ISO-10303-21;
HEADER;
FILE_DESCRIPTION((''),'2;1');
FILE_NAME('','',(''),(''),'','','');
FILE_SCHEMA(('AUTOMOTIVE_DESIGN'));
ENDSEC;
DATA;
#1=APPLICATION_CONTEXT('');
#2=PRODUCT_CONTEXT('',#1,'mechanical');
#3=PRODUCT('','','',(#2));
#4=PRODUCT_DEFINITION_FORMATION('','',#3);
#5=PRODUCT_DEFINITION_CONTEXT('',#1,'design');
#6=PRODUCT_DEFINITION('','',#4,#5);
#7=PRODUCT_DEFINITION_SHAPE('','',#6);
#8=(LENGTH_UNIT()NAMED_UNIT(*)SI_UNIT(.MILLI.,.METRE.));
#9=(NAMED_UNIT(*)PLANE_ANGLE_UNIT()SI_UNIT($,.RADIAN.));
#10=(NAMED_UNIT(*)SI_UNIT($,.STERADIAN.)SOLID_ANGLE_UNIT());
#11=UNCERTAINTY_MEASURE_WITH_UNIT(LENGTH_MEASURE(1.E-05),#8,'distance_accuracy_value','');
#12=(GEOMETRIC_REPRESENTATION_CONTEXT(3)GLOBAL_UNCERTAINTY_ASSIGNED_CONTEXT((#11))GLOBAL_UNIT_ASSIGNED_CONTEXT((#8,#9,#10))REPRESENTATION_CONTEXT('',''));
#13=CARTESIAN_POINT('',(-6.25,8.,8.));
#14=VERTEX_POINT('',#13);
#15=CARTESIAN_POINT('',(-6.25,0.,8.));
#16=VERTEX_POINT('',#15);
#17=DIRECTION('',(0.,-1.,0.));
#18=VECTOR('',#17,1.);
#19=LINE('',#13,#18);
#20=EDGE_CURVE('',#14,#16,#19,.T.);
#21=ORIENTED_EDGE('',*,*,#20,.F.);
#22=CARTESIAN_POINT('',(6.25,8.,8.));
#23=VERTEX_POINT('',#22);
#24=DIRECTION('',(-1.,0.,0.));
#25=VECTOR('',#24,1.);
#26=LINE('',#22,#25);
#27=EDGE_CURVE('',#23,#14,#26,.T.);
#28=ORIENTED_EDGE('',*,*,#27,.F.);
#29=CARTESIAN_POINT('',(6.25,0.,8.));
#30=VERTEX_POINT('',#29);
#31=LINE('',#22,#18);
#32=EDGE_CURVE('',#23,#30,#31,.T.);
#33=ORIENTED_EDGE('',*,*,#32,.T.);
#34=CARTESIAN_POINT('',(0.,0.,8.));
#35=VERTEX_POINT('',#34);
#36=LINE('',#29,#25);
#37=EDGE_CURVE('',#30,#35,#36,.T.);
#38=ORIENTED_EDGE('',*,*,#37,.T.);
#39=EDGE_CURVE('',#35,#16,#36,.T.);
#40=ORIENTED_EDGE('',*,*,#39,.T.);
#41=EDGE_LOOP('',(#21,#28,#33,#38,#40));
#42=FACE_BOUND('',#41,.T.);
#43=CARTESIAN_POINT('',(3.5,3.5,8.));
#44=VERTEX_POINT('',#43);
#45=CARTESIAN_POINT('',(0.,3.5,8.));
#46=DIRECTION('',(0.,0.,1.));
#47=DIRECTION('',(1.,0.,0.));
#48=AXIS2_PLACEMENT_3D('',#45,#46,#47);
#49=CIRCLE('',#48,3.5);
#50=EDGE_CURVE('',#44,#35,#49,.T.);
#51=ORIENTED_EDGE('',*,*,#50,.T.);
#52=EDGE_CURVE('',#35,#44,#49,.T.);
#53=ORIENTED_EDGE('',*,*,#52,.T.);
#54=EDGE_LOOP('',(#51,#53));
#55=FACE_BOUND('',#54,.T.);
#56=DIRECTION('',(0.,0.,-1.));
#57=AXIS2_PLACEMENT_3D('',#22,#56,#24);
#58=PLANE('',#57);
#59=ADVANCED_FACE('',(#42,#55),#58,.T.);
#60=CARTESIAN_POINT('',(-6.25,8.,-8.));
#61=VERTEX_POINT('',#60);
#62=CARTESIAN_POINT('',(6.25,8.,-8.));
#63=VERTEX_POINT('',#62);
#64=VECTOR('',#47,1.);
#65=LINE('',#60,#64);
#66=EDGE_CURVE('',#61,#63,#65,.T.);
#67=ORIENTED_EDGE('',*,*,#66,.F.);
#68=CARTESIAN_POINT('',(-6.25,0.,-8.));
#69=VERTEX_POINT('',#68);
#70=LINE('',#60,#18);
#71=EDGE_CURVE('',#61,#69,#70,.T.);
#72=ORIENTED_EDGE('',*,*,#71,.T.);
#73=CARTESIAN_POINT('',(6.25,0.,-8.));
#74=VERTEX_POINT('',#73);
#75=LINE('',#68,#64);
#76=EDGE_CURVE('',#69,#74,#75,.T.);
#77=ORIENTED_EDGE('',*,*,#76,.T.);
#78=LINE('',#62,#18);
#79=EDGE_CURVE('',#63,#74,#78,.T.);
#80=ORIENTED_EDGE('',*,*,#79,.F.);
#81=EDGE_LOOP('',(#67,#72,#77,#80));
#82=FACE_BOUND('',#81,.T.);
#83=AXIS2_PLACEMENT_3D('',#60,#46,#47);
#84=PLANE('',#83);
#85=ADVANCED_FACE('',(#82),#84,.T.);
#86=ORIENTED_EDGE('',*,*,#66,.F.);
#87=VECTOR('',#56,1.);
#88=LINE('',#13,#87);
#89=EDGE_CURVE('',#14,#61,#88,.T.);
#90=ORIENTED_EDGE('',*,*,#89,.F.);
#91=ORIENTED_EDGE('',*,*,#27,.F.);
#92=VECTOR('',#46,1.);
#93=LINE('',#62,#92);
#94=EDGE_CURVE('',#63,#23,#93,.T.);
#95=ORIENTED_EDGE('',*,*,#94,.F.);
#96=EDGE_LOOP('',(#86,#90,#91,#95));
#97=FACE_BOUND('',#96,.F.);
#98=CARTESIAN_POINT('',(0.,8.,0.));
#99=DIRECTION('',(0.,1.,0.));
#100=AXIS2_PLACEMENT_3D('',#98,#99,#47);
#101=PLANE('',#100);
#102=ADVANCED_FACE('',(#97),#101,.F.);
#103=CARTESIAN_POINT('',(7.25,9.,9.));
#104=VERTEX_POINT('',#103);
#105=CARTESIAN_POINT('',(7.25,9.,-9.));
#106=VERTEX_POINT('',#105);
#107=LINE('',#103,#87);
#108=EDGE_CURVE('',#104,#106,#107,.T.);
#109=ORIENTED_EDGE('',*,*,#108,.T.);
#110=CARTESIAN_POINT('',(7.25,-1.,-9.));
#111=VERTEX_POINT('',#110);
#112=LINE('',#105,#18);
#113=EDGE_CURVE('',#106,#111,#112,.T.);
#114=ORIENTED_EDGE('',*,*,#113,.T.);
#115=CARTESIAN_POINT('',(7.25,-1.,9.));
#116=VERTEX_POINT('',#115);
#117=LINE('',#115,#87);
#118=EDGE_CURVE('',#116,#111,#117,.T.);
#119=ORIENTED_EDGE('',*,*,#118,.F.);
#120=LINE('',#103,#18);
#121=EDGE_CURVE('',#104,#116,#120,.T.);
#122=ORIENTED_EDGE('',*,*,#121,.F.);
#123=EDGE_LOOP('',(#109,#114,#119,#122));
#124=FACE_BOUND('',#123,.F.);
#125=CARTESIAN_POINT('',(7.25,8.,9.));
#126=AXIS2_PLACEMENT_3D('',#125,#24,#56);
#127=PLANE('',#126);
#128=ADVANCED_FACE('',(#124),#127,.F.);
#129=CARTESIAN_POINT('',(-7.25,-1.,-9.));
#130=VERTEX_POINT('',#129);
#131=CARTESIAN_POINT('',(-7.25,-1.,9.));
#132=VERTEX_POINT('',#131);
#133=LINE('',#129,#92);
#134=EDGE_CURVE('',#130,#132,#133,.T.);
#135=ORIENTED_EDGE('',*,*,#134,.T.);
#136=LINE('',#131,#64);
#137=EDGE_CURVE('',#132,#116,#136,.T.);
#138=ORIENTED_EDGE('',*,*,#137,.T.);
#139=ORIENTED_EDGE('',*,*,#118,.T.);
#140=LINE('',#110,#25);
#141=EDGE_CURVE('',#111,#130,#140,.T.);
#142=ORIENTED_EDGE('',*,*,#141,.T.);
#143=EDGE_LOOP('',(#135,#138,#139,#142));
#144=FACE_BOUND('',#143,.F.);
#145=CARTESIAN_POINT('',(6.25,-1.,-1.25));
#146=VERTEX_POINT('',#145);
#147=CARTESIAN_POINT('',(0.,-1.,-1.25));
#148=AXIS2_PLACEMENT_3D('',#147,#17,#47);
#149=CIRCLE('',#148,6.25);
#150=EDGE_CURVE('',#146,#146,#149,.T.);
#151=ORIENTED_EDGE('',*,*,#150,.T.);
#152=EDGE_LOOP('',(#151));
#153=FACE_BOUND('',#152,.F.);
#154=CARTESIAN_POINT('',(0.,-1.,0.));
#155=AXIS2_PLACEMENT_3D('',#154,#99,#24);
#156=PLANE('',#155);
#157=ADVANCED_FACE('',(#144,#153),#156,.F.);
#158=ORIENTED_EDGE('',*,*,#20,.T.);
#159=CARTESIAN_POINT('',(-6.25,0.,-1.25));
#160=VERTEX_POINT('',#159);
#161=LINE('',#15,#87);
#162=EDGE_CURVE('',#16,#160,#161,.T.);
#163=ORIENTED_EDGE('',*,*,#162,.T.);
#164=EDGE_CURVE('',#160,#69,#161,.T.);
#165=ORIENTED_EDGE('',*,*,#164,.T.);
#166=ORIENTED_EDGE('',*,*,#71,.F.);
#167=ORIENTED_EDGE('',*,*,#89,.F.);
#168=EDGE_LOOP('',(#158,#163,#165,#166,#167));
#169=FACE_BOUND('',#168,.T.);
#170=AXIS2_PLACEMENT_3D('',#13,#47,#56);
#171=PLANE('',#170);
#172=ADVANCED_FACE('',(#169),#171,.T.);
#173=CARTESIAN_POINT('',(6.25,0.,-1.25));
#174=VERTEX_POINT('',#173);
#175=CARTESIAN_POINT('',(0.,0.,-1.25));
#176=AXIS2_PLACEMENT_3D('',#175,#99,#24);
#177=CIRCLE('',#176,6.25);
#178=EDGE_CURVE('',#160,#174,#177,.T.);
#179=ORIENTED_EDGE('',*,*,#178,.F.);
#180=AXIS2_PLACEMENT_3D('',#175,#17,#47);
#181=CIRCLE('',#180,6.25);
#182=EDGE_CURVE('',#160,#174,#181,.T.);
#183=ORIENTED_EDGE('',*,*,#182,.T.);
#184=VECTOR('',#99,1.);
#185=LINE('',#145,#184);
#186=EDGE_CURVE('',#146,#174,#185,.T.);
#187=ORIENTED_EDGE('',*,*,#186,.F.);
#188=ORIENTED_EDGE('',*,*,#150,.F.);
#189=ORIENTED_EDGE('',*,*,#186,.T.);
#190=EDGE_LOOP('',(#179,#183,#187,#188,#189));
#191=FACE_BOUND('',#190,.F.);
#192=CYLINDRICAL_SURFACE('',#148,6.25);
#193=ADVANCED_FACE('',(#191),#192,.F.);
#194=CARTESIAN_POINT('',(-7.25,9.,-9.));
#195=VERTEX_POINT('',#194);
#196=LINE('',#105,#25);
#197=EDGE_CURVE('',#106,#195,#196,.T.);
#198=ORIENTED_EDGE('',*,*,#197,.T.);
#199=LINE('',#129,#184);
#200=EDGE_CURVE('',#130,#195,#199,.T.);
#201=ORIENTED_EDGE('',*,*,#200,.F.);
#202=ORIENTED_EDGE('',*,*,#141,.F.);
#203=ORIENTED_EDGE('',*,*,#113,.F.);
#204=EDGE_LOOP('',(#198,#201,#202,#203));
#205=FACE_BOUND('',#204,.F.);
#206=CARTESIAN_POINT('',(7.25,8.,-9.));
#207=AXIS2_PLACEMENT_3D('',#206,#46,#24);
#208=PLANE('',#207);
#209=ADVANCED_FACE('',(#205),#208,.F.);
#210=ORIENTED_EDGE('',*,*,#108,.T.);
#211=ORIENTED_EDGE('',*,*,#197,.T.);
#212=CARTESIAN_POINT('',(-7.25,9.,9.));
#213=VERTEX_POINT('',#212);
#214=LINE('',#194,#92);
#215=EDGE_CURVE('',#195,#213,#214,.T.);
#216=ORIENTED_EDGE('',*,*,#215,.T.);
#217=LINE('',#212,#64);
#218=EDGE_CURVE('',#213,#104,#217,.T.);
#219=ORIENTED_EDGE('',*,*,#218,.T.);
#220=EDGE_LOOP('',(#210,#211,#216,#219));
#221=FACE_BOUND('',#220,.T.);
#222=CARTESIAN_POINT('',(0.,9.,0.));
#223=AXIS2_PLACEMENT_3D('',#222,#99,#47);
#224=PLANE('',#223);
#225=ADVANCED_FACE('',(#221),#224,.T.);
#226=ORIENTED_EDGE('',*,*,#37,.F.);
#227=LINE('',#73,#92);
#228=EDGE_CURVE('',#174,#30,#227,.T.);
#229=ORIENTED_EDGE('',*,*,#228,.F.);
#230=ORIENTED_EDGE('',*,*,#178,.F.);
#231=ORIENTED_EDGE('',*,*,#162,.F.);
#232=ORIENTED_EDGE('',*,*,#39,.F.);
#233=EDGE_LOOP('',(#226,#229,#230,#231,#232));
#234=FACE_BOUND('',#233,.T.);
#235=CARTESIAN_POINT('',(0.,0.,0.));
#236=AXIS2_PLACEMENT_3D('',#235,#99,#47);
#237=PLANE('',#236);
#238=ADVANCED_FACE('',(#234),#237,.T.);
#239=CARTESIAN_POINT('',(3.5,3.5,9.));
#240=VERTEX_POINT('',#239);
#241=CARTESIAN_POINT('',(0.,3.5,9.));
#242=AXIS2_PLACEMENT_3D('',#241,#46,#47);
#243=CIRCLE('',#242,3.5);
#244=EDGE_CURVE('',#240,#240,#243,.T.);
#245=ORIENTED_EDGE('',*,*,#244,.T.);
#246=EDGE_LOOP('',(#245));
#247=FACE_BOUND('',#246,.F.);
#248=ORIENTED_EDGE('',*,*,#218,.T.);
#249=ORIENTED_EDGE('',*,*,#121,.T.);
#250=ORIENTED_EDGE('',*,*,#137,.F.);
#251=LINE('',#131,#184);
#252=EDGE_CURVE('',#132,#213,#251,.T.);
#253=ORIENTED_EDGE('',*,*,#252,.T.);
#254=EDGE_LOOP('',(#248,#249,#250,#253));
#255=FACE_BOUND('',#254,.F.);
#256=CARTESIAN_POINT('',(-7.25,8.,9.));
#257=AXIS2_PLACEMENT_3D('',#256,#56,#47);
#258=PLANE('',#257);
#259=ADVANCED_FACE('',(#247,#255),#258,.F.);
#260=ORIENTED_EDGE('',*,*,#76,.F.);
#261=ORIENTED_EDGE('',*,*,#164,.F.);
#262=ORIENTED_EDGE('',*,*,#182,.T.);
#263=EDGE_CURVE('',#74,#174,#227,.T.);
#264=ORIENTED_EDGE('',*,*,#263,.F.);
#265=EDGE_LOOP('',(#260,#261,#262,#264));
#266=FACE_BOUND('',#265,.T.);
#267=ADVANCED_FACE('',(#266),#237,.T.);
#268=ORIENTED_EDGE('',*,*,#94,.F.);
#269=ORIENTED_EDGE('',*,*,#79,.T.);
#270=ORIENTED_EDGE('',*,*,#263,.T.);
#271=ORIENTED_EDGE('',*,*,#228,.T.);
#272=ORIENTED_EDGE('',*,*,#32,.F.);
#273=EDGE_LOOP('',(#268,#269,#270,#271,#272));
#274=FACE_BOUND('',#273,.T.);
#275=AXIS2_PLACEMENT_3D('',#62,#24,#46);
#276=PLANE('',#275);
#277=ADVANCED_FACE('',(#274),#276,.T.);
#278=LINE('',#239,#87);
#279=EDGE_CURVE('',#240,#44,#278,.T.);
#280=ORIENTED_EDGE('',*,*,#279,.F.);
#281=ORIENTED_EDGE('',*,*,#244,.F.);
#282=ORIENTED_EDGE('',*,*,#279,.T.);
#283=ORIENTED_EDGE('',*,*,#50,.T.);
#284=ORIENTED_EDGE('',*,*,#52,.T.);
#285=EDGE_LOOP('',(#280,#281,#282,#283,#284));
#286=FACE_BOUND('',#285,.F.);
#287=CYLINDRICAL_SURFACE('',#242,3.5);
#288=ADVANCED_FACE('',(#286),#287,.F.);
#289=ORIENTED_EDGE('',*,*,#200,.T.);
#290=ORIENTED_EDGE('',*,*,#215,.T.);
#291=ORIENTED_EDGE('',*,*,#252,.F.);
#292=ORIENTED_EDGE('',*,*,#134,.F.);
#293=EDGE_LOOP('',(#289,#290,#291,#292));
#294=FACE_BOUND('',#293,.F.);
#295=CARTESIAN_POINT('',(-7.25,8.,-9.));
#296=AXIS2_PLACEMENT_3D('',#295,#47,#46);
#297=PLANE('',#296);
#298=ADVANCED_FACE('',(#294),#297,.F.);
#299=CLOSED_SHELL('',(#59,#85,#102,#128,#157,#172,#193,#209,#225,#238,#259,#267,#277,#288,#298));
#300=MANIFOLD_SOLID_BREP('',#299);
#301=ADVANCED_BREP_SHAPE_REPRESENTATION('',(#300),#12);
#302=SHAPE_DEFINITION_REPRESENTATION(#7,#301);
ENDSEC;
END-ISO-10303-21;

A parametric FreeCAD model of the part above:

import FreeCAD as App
import Part
import Sketcher
Q = App.Units.Quantity

doc = App.newDocument("Part")
body = doc.addObject("PartDesign::Body", "Body")

# Sketch on XZ plane
sketch1 = body.newObject("Sketcher::SketchObject", "Sketch")
sketch1.AttachmentSupport = (doc.getObject("XZ_Plane"), [""])
sketch1.MapMode = "FlatFace"
sketch1.addGeometry(Part.LineSegment(App.Vector(7, 9, 0), App.Vector(7, -9, 0)), False)
sketch1.addGeometry(Part.LineSegment(App.Vector(7, -9, 0), App.Vector(-7, -9, 0)), False)
sketch1.addGeometry(Part.LineSegment(App.Vector(-7, -9, 0), App.Vector(-7, 9, 0)), False)
sketch1.addGeometry(Part.LineSegment(App.Vector(-7, 9, 0), App.Vector(7, 9, 0)), False)
sketch1.addConstraint(Sketcher.Constraint("Coincident", 0, 2, 1, 1))
sketch1.addConstraint(Sketcher.Constraint("Coincident", 1, 2, 2, 1))
sketch1.addConstraint(Sketcher.Constraint("Coincident", 2, 2, 3, 1))
sketch1.addConstraint(Sketcher.Constraint("Coincident", 3, 2, 0, 1))
sketch1.addConstraint(Sketcher.Constraint("Vertical", 0))
sketch1.addConstraint(Sketcher.Constraint("Horizontal", 1))
sketch1.addConstraint(Sketcher.Constraint("Vertical", 2))
sketch1.addConstraint(Sketcher.Constraint("Horizontal", 3))
sketch1.addConstraint(Sketcher.Constraint("Symmetric", 0, 2, 2, 2, -1, 1))
sketch1.addConstraint(Sketcher.Constraint("DistanceY", 0, 2, 0, 1, Q("18 mm")))
sketch1.addConstraint(Sketcher.Constraint("DistanceX", 1, 2, 1, 1, Q("14.5 mm")))
pad1 = body.newObject("PartDesign::Pad", "Pad")
pad1.Profile = sketch1
pad1.Type = "TwoLengths"
pad1.Length = 8
pad1.Length2 = 1
pad1.Reversed = True

# Sketch on XZ plane
sketch2 = body.newObject("Sketcher::SketchObject", "Sketch001")
sketch2.AttachmentSupport = (doc.getObject("XZ_Plane"), [""])
sketch2.MapMode = "FlatFace"
sketch2.AttachmentOffset = App.Placement(App.Vector(0, 0, 1), App.Rotation())
sketch2.addGeometry(Part.Circle(App.Vector(0, -1, 0), App.Vector(0, 0, 1), 6), False)
sketch2.addConstraint(Sketcher.Constraint("PointOnObject", 0, 3, -2))
sketch2.addConstraint(Sketcher.Constraint("Diameter", 0, Q("12.5 mm")))
sketch2.addConstraint(Sketcher.Constraint("DistanceY", 0, 3, -1, 1, Q("1.25 mm")))
pocket1 = body.newObject("PartDesign::Pocket", "Pocket")
pocket1.Profile = sketch2
pocket1.Length = 8

# Sketch on XY plane
sketch3 = body.newObject("Sketcher::SketchObject", "Sketch002")
sketch3.AttachmentSupport = (doc.getObject("XY_Plane"), [""])
sketch3.MapMode = "FlatFace"
sketch3.AttachmentOffset = App.Placement(App.Vector(0, 0, 9), App.Rotation())
sketch3.addGeometry(Part.Circle(App.Vector(0, 3.5, 0), App.Vector(0, 0, 1), 3.5), False)
sketch3.addConstraint(Sketcher.Constraint("PointOnObject", 0, 3, -2))
sketch3.addConstraint(Sketcher.Constraint("Diameter", 0, Q("7 mm")))
sketch3.addConstraint(Sketcher.Constraint("DistanceY", -1, 1, 0, 3, Q("3.5 mm")))
pocket2 = body.newObject("PartDesign::Pocket", "Pocket001")
pocket2.Profile = sketch3
pocket2.Length = 8

# Sketch on XZ plane
sketch4 = body.newObject("Sketcher::SketchObject", "Sketch003")
sketch4.AttachmentSupport = (doc.getObject("XZ_Plane"), [""])
sketch4.MapMode = "FlatFace"
sketch4.AttachmentOffset = App.Placement(App.Vector(0, 0, -8), App.Rotation())
sketch4.addGeometry(Part.LineSegment(App.Vector(-6, 8, 0), App.Vector(6, 8, 0)), False)
sketch4.addGeometry(Part.LineSegment(App.Vector(6, 8, 0), App.Vector(6, -8, 0)), False)
sketch4.addGeometry(Part.LineSegment(App.Vector(6, -8, 0), App.Vector(-6, -8, 0)), False)
sketch4.addGeometry(Part.LineSegment(App.Vector(-6, -8, 0), App.Vector(-6, 8, 0)), False)
sketch4.addConstraint(Sketcher.Constraint("Coincident", 0, 2, 1, 1))
sketch4.addConstraint(Sketcher.Constraint("Coincident", 1, 2, 2, 1))
sketch4.addConstraint(Sketcher.Constraint("Coincident", 2, 2, 3, 1))
sketch4.addConstraint(Sketcher.Constraint("Coincident", 3, 2, 0, 1))
sketch4.addConstraint(Sketcher.Constraint("Horizontal", 0))
sketch4.addConstraint(Sketcher.Constraint("Vertical", 1))
sketch4.addConstraint(Sketcher.Constraint("Horizontal", 2))
sketch4.addConstraint(Sketcher.Constraint("Vertical", 3))
sketch4.addConstraint(Sketcher.Constraint("Symmetric", 0, 2, 2, 2, -1, 1))
sketch4.addConstraint(Sketcher.Constraint("DistanceY", 1, 2, 1, 1, Q("16 mm")))
sketch4.addConstraint(Sketcher.Constraint("DistanceX", 0, 1, 0, 2, Q("12.5 mm")))
pocket3 = body.newObject("PartDesign::Pocket", "Pocket002")
pocket3.Profile = sketch4
pocket3.Length = 8
pocket3.Reversed = True

# Sketch on XZ plane
sketch5 = body.newObject("Sketcher::SketchObject", "Sketch004")
sketch5.AttachmentSupport = (doc.getObject("XZ_Plane"), [""])
sketch5.MapMode = "FlatFace"
sketch5.AttachmentOffset = App.Placement(App.Vector(0, 0, -8), App.Rotation())
sketch5.addGeometry(Part.LineSegment(App.Vector(7, -9, 0), App.Vector(-7, -9, 0)), False)
sketch5.addGeometry(Part.LineSegment(App.Vector(-7, -9, 0), App.Vector(-7, 9, 0)), False)
sketch5.addGeometry(Part.LineSegment(App.Vector(-7, 9, 0), App.Vector(7, 9, 0)), False)
sketch5.addGeometry(Part.LineSegment(App.Vector(7, 9, 0), App.Vector(7, -9, 0)), False)
sketch5.addConstraint(Sketcher.Constraint("Coincident", 0, 2, 1, 1))
sketch5.addConstraint(Sketcher.Constraint("Coincident", 1, 2, 2, 1))
sketch5.addConstraint(Sketcher.Constraint("Coincident", 2, 2, 3, 1))
sketch5.addConstraint(Sketcher.Constraint("Coincident", 3, 2, 0, 1))
sketch5.addConstraint(Sketcher.Constraint("Horizontal", 0))
sketch5.addConstraint(Sketcher.Constraint("Vertical", 1))
sketch5.addConstraint(Sketcher.Constraint("Horizontal", 2))
sketch5.addConstraint(Sketcher.Constraint("Vertical", 3))
sketch5.addConstraint(Sketcher.Constraint("Symmetric", 0, 2, 2, 2, -1, 1))
sketch5.addConstraint(Sketcher.Constraint("DistanceY", 1, 1, 1, 2, Q("18 mm")))
sketch5.addConstraint(Sketcher.Constraint("DistanceX", 0, 2, 0, 1, Q("14.5 mm")))
pad2 = body.newObject("PartDesign::Pad", "Pad001")
pad2.Profile = sketch5
pad2.Length = 1
pad2.Reversed = True

doc.recompute()
